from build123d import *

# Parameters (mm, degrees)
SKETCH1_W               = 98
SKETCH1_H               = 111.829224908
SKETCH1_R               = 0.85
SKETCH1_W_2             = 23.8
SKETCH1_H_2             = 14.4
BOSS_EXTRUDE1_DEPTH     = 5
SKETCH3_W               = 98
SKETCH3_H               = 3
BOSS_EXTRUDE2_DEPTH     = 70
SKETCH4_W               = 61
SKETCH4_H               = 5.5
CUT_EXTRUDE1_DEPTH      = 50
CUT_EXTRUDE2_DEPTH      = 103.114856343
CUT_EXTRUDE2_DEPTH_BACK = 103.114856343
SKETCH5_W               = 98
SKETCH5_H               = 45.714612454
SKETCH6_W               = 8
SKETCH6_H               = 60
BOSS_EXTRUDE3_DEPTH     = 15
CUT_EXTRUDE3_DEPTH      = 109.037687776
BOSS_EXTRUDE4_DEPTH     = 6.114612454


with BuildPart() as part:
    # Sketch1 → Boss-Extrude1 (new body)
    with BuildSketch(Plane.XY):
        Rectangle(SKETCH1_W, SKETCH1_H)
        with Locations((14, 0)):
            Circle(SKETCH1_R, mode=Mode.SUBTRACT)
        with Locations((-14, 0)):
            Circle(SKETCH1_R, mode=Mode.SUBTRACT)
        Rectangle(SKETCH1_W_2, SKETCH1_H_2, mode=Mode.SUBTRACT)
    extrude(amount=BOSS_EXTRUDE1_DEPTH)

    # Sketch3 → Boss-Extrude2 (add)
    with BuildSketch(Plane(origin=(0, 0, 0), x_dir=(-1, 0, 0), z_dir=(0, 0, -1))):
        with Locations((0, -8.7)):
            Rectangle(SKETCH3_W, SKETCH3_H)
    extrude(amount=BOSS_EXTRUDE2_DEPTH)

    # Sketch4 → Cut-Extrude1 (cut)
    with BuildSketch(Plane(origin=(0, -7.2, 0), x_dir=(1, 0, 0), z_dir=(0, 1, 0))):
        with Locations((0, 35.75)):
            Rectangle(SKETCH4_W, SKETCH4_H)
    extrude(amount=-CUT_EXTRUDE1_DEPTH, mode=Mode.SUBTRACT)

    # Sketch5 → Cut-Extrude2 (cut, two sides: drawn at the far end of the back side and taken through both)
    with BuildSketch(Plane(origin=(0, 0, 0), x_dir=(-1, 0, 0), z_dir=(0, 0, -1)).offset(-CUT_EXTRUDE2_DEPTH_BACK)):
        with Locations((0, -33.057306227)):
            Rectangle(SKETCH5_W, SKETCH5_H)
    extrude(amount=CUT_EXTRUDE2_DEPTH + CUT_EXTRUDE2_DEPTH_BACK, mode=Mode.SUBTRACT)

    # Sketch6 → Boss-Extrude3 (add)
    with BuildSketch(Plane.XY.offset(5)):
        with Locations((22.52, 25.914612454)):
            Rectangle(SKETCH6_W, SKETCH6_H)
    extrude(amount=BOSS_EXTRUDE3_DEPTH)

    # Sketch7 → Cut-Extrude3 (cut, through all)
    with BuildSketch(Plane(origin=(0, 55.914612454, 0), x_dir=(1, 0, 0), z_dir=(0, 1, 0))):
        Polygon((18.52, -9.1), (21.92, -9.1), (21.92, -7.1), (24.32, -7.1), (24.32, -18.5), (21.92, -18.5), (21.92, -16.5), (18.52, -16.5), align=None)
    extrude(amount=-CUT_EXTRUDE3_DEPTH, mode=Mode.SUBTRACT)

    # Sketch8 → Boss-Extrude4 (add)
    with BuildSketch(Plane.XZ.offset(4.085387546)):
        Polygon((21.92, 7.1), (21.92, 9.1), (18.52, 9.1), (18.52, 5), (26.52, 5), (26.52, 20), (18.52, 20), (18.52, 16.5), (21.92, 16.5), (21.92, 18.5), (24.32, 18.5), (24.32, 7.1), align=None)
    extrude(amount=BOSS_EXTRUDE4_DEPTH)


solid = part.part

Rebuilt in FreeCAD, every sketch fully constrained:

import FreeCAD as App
import Part
import Sketcher
from FreeCAD import Vector


def add_polygon(sketch, points):
    """Adds a closed chain of lines whose ends are joined by coincident constraints."""
    first, n = sketch.GeometryCount, len(points)
    for a, b in zip(points, points[1:] + points[:1]):
        sketch.addGeometry(Part.LineSegment(App.Vector(*a, 0), App.Vector(*b, 0)), False)
    for i in range(n):
        sketch.addConstraint(Sketcher.Constraint("Coincident", first + i, 2, first + (i + 1) % n, 1))

doc = App.newDocument("Part")
body = doc.addObject("PartDesign::Body", "Body")

# Sketch on XY plane
sketch1 = doc.addObject("Sketcher::SketchObject", "Sketch")
body.addObject(sketch1)
sketch1.AttachmentSupport = (doc.XY_Plane, [""])
sketch1.MapMode = "FlatFace"
add_polygon(sketch1, [(-49, 55.9), (-49, -55.9), (49, -55.9), (49, 55.9)])  # lines 0-3
sketch1.addGeometry(Part.Circle(Vector(-14, 0, 0), Vector(0, 0, 1), 0.8), False)  # 4
add_polygon(sketch1, [(11.9, -7.2), (-11.9, -7.2), (-11.9, 7.2), (11.9, 7.2)])  # lines 5-8
sketch1.addGeometry(Part.Circle(Vector(14, 0, 0), Vector(0, 0, 1), 0.8), False)  # 9
sketch1.addConstraint([
    Sketcher.Constraint("Vertical", 0),
    Sketcher.Constraint("Horizontal", 1),
    Sketcher.Constraint("Vertical", 2),
    Sketcher.Constraint("Horizontal", 3),
    Sketcher.Constraint("Horizontal", 5),
    Sketcher.Constraint("Vertical", 6),
    Sketcher.Constraint("Horizontal", 7),
    Sketcher.Constraint("Vertical", 8),
    Sketcher.Constraint("Equal", 4, 9),
    Sketcher.Constraint("Symmetric", 4, 3, 9, 3, -1, 1),
    Sketcher.Constraint("Symmetric", 0, 2, 2, 2, -1, 1),
    Sketcher.Constraint("Symmetric", 5, 2, 7, 2, -1, 1),
    Sketcher.Constraint("PointOnObject", 4, 3, -1),
    Sketcher.Constraint("Diameter", 4, 1.7),
    Sketcher.Constraint("DistanceX", 1, 1, 1, 2, 98.0),
    Sketcher.Constraint("DistanceX", 5, 2, 5, 1, 23.8),
    Sketcher.Constraint("DistanceY", 6, 1, 6, 2, 14.4),
    Sketcher.Constraint("DistanceX", 4, 3, -1, 1, 14.0),
    Sketcher.Constraint("DistanceY", 0, 2, 0, 1, 111.829225),
])
pad1 = doc.addObject("PartDesign::Pad", "Pad")
body.addObject(pad1)
pad1.Profile = sketch1
pad1.Length = 5

# Sketch on XY plane
sketch2 = doc.addObject("Sketcher::SketchObject", "Sketch001")
body.addObject(sketch2)
sketch2.AttachmentSupport = (doc.XY_Plane, [""])
sketch2.MapMode = "FlatFace"
add_polygon(sketch2, [(49, -7.2), (49, -10.2), (-49, -10.2), (-49, -7.2)])  # lines 0-3
sketch2.addConstraint([
    Sketcher.Constraint("Vertical", 0),
    Sketcher.Constraint("Horizontal", 1),
    Sketcher.Constraint("Vertical", 2),
    Sketcher.Constraint("Horizontal", 3),
    Sketcher.Constraint("DistanceX", 1, 2, 1, 1, 98.0),
    Sketcher.Constraint("DistanceY", 0, 2, 0, 1, 3.0),
    Sketcher.Constraint("DistanceX", -1, 1, 0, 2, 49.0),
    Sketcher.Constraint("DistanceY", 0, 2, -1, 1, 10.2),
])
pad2 = doc.addObject("PartDesign::Pad", "Pad001")
body.addObject(pad2)
pad2.Profile = sketch2
pad2.Length = 70
pad2.Reversed = True

# Sketch on XZ plane
sketch3 = doc.addObject("Sketcher::SketchObject", "Sketch002")
body.addObject(sketch3)
sketch3.AttachmentSupport = (doc.XZ_Plane, [""])
sketch3.MapMode = "FlatFace"
sketch3.AttachmentOffset = App.Placement(Vector(0, 0, 7.2), App.Rotation())
add_polygon(sketch3, [(-30, -38), (-30, -33), (30, -33), (30, -38)])  # lines 0-3
sketch3.addConstraint([
    Sketcher.Constraint("Vertical", 0),
    Sketcher.Constraint("Horizontal", 1),
    Sketcher.Constraint("Vertical", 2),
    Sketcher.Constraint("Horizontal", 3),
    Sketcher.Constraint("DistanceX", 1, 1, 1, 2, 61.0),
    Sketcher.Constraint("DistanceY", 0, 1, 0, 2, 5.5),
    Sketcher.Constraint("DistanceY", 0, 2, -1, 1, 33.0),
    Sketcher.Constraint("DistanceX", 0, 2, -1, 1, 30.5),
])
pocket1 = doc.addObject("PartDesign::Pocket", "Pocket")
body.addObject(pocket1)
pocket1.Profile = sketch3
pocket1.Length = 50
pocket1.Reversed = True

# Sketch on XY plane
sketch4 = doc.addObject("Sketcher::SketchObject", "Sketch003")
body.addObject(sketch4)
sketch4.AttachmentSupport = (doc.XY_Plane, [""])
sketch4.MapMode = "FlatFace"
add_polygon(sketch4, [(49, -10), (49, -56), (-49, -56), (-49, -10)])  # lines 0-3
sketch4.addConstraint([
    Sketcher.Constraint("Vertical", 0),
    Sketcher.Constraint("Horizontal", 1),
    Sketcher.Constraint("Vertical", 2),
    Sketcher.Constraint("Horizontal", 3),
    Sketcher.Constraint("DistanceX", 1, 2, 1, 1, 98.0),
    Sketcher.Constraint("DistanceX", -1, 1, 0, 2, 49.0),
    Sketcher.Constraint("DistanceY", 2, 2, -1, 1, 10.2),
    Sketcher.Constraint("DistanceY", 0, 2, 0, 1, 45.714612),
])
pocket2 = doc.addObject("PartDesign::Pocket", "Pocket001")
body.addObject(pocket2)
pocket2.Profile = sketch4
pocket2.Type = "ThroughAll"
pocket2.Midplane = True

# Sketch on XY plane
sketch5 = doc.addObject("Sketcher::SketchObject", "Sketch004")
body.addObject(sketch5)
sketch5.AttachmentSupport = (doc.XY_Plane, [""])
sketch5.MapMode = "FlatFace"
sketch5.AttachmentOffset = App.Placement(Vector(0, 0, 5), App.Rotation())
add_polygon(sketch5, [(19, 56), (19, -4), (27, -4), (27, 56)])  # lines 0-3
sketch5.addConstraint([
    Sketcher.Constraint("Vertical", 0),
    Sketcher.Constraint("Horizontal", 1),
    Sketcher.Constraint("Vertical", 2),
    Sketcher.Constraint("Horizontal", 3),
    Sketcher.Constraint("DistanceX", 1, 1, 1, 2, 8.0),
    Sketcher.Constraint("DistanceY", 0, 2, 0, 1, 60.0),
    Sketcher.Constraint("DistanceX", -1, 1, 0, 2, 18.52),
    Sketcher.Constraint("DistanceY", 0, 2, -1, 1, 4.085388),
])
pad3 = doc.addObject("PartDesign::Pad", "Pad002")
body.addObject(pad3)
pad3.Profile = sketch5
pad3.Length = 15

# Sketch on XZ plane
sketch6 = doc.addObject("Sketcher::SketchObject", "Sketch005")
body.addObject(sketch6)
sketch6.AttachmentSupport = (doc.XZ_Plane, [""])
sketch6.MapMode = "FlatFace"
sketch6.AttachmentOffset = App.Placement(Vector(0, 0, -55.914612), App.Rotation())
add_polygon(sketch6, [(21.9, 9.1), (18.5, 9.1), (18.5, 16.5), (21.9, 16.5), (21.9, 18.5), (24.3, 18.5), (24.3, 7.1), (21.9, 7.1)])  # lines 0-7
sketch6.addConstraint([
    Sketcher.Constraint("Horizontal", 0),
    Sketcher.Constraint("Vertical", 1),
    Sketcher.Constraint("Horizontal", 2),
    Sketcher.Constraint("Vertical", 3),
    Sketcher.Constraint("Horizontal", 4),
    Sketcher.Constraint("Vertical", 5),
    Sketcher.Constraint("Horizontal", 6),
    Sketcher.Constraint("Vertical", 7),
    Sketcher.Constraint("Vertical", 3, 2, 6, 2),
    Sketcher.Constraint("Equal", 3, 7),
    Sketcher.Constraint("DistanceY", 3, 1, 3, 2, 2.0),
    Sketcher.Constraint("DistanceX", 0, 2, 0, 1, 3.4),
    Sketcher.Constraint("DistanceX", 4, 1, 4, 2, 2.4),
    Sketcher.Constraint("DistanceY", 1, 1, 1, 2, 7.4),
    Sketcher.Constraint("DistanceY", -1, 1, 0, 2, 9.1),
    Sketcher.Constraint("DistanceX", -1, 1, 0, 2, 18.52),
])
pocket3 = doc.addObject("PartDesign::Pocket", "Pocket002")
body.addObject(pocket3)
pocket3.Profile = sketch6
pocket3.Type = "ThroughAll"
pocket3.Reversed = True

# Sketch on XZ plane
sketch7 = doc.addObject("Sketcher::SketchObject", "Sketch006")
body.addObject(sketch7)
sketch7.AttachmentSupport = (doc.XZ_Plane, [""])
sketch7.MapMode = "FlatFace"
sketch7.AttachmentOffset = App.Placement(Vector(0, 0, 4.085388), App.Rotation())
add_polygon(sketch7, [(21.9, 7.1), (21.9, 9.1), (18.5, 9.1), (18.5, 5), (26.5, 5), (26.5, 20), (18.5, 20), (18.5, 16.5), (21.9, 16.5), (21.9, 18.5), (24.3, 18.5), (24.3, 7.1)])  # lines 0-11
sketch7.addConstraint([
    Sketcher.Constraint("Vertical", 0),
    Sketcher.Constraint("Horizontal", 1),
    Sketcher.Constraint("Vertical", 2),
    Sketcher.Constraint("Horizontal", 3),
    Sketcher.Constraint("Vertical", 4),
    Sketcher.Constraint("Horizontal", 5),
    Sketcher.Constraint("Vertical", 6),
    Sketcher.Constraint("Horizontal", 7),
    Sketcher.Constraint("Vertical", 8),
    Sketcher.Constraint("Horizontal", 9),
    Sketcher.Constraint("Vertical", 10),
    Sketcher.Constraint("Horizontal", 11),
    Sketcher.Constraint("Vertical", 2, 2, 5, 2),
    Sketcher.Constraint("Vertical", 0, 2, 7, 2),
    Sketcher.Constraint("Equal", 0, 8),
    Sketcher.Constraint("DistanceX", 3, 1, 3, 2, 8.0),
    Sketcher.Constraint("DistanceY", 0, 1, 0, 2, 2.0),
    Sketcher.Constraint("DistanceY", 4, 1, 4, 2, 15.0),
    Sketcher.Constraint("DistanceX", 1, 2, 1, 1, 3.4),
    Sketcher.Constraint("DistanceX", 9, 1, 9, 2, 2.4),
    Sketcher.Constraint("DistanceY", 2, 2, 2, 1, 4.1),
    Sketcher.Constraint("DistanceY", 6, 2, 6, 1, 3.5),
    Sketcher.Constraint("DistanceY", -1, 1, 2, 2, 5.0),
    Sketcher.Constraint("DistanceX", -1, 1, 0, 2, 21.92),
])
pad4 = doc.addObject("PartDesign::Pad", "Pad003")
body.addObject(pad4)
pad4.Profile = sketch7
pad4.Length = 6.114612

doc.recompute()
